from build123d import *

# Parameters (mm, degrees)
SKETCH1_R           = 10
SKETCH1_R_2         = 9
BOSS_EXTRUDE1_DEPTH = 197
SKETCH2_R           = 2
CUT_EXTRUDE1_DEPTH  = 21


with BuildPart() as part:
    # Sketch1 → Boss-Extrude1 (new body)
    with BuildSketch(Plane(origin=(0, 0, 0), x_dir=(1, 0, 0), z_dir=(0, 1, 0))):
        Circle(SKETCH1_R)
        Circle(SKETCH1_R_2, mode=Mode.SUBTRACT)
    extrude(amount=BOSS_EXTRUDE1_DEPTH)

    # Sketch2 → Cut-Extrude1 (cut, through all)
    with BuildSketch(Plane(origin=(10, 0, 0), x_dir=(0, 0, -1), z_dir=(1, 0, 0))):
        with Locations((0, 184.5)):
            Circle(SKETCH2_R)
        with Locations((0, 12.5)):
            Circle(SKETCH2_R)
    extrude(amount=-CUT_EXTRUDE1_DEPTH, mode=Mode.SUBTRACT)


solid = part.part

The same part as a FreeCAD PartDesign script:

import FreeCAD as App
import Part
import Sketcher
from FreeCAD import Vector
Q = App.Units.Quantity

doc = App.newDocument("Part")
body = doc.addObject("PartDesign::Body", "Body")

# Sketch on XZ plane
sketch1 = doc.addObject("Sketcher::SketchObject", "Sketch")
body.addObject(sketch1)
sketch1.AttachmentSupport = (doc.XZ_Plane, [""])
sketch1.MapMode = "FlatFace"
sketch1.addGeometry([
    Part.Circle(Vector(0, 0, 0), Vector(0, 0, 1), 10),
    Part.Circle(Vector(0, 0, 0), Vector(0, 0, 1), 9),
], False)
sketch1.addConstraint([
    Sketcher.Constraint("Coincident", 0, 3, -1, 1),
    Sketcher.Constraint("Coincident", 1, 3, -1, 1),
    Sketcher.Constraint("Diameter", 0, Q("20 mm")),
    Sketcher.Constraint("Diameter", 1, Q("18 mm")),
])
pad1 = doc.addObject("PartDesign::Pad", "Pad")
body.addObject(pad1)
pad1.Profile = sketch1
pad1.Length = 197
pad1.Reversed = True

# Sketch on YZ plane
sketch2 = doc.addObject("Sketcher::SketchObject", "Sketch001")
body.addObject(sketch2)
sketch2.AttachmentSupport = (doc.YZ_Plane, [""])
sketch2.MapMode = "FlatFace"
sketch2.AttachmentOffset = App.Placement(Vector(0, 0, 10), App.Rotation())
sketch2.addGeometry([
    Part.Circle(Vector(184.5, 0, 0), Vector(0, 0, 1), 2),
    Part.Circle(Vector(12.5, 0, 0), Vector(0, 0, 1), 2),
], False)
sketch2.addConstraint([
    Sketcher.Constraint("Equal", 0, 1),
    Sketcher.Constraint("PointOnObject", 0, 3, -1),
    Sketcher.Constraint("PointOnObject", 1, 3, -1),
    Sketcher.Constraint("Diameter", 0, Q("4 mm")),
    Sketcher.Constraint("DistanceX", 1, 3, 0, 3, Q("172 mm")),
    Sketcher.Constraint("DistanceX", -1, 1, 0, 3, Q("184.5 mm")),
])
pocket1 = doc.addObject("PartDesign::Pocket", "Pocket")
body.addObject(pocket1)
pocket1.Profile = sketch2
pocket1.Type = "ThroughAll"

doc.recompute()
